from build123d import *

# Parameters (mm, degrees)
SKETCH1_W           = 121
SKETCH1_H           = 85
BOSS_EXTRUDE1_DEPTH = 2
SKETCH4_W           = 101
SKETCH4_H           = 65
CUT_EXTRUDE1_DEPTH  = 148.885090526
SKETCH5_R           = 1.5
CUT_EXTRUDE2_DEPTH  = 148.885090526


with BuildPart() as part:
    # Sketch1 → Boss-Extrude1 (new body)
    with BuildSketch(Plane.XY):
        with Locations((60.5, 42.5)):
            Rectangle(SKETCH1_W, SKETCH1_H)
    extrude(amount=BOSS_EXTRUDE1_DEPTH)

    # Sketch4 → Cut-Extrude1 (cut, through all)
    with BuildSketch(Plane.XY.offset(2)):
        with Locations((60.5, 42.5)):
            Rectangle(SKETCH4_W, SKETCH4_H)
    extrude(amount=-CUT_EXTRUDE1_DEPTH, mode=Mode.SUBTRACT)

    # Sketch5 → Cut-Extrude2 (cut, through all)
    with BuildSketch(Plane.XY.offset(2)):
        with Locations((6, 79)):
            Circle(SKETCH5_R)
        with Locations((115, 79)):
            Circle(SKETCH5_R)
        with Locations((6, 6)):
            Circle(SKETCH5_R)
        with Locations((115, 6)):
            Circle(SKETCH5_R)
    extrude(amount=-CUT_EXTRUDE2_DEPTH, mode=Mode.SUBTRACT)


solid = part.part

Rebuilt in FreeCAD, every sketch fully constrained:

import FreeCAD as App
import Part
import Sketcher
from FreeCAD import Vector
Q = App.Units.Quantity

doc = App.newDocument("Part")
body = doc.addObject("PartDesign::Body", "Body")

sketch1 = doc.addObject("Sketcher::SketchObject", "Sketch")
body.addObject(sketch1)
sketch1.AttachmentSupport = (doc.XY_Plane, [""])
sketch1.MapMode = "FlatFace"
sketch1.addGeometry(Part.LineSegment(Vector(0, 85, 0), Vector(0, 0, 0)), False)
sketch1.addGeometry(Part.LineSegment(Vector(0, 0, 0), Vector(121, 0, 0)), False)
sketch1.addGeometry(Part.LineSegment(Vector(121, 0, 0), Vector(121, 85, 0)), False)
sketch1.addGeometry(Part.LineSegment(Vector(121, 85, 0), Vector(0, 85, 0)), False)
sketch1.addConstraint(Sketcher.Constraint("Coincident", 0, 2, 1, 1))
sketch1.addConstraint(Sketcher.Constraint("Coincident", 1, 2, 2, 1))
sketch1.addConstraint(Sketcher.Constraint("Coincident", 2, 2, 3, 1))
sketch1.addConstraint(Sketcher.Constraint("Coincident", 3, 2, 0, 1))
sketch1.addConstraint(Sketcher.Constraint("Vertical", 0))
sketch1.addConstraint(Sketcher.Constraint("Horizontal", 1))
sketch1.addConstraint(Sketcher.Constraint("Vertical", 2))
sketch1.addConstraint(Sketcher.Constraint("Horizontal", 3))
sketch1.addConstraint(Sketcher.Constraint("Coincident", 0, 2, -1, 1))
sketch1.addConstraint(Sketcher.Constraint("DistanceX", 1, 1, 1, 2, Q("121 mm")))
sketch1.addConstraint(Sketcher.Constraint("DistanceY", 0, 2, 0, 1, Q("85 mm")))
pad1 = doc.addObject("PartDesign::Pad", "Pad")
body.addObject(pad1)
pad1.Profile = sketch1
pad1.Length = 2

sketch2 = doc.addObject("Sketcher::SketchObject", "Sketch001")
body.addObject(sketch2)
sketch2.AttachmentSupport = (doc.XY_Plane, [""])
sketch2.MapMode = "FlatFace"
sketch2.AttachmentOffset = App.Placement(Vector(0, 0, 2), App.Rotation())
sketch2.addGeometry(Part.LineSegment(Vector(10, 75, 0), Vector(10, 10, 0)), False)
sketch2.addGeometry(Part.LineSegment(Vector(10, 10, 0), Vector(111, 10, 0)), False)
sketch2.addGeometry(Part.LineSegment(Vector(111, 10, 0), Vector(111, 75, 0)), False)
sketch2.addGeometry(Part.LineSegment(Vector(111, 75, 0), Vector(10, 75, 0)), False)
sketch2.addConstraint(Sketcher.Constraint("Coincident", 0, 2, 1, 1))
sketch2.addConstraint(Sketcher.Constraint("Coincident", 1, 2, 2, 1))
sketch2.addConstraint(Sketcher.Constraint("Coincident", 2, 2, 3, 1))
sketch2.addConstraint(Sketcher.Constraint("Coincident", 3, 2, 0, 1))
sketch2.addConstraint(Sketcher.Constraint("Vertical", 0))
sketch2.addConstraint(Sketcher.Constraint("Horizontal", 1))
sketch2.addConstraint(Sketcher.Constraint("Vertical", 2))
sketch2.addConstraint(Sketcher.Constraint("Horizontal", 3))
sketch2.addConstraint(Sketcher.Constraint("DistanceX", 1, 1, 1, 2, Q("101 mm")))
sketch2.addConstraint(Sketcher.Constraint("DistanceY", 0, 2, 0, 1, Q("65 mm")))
sketch2.addConstraint(Sketcher.Constraint("DistanceX", -1, 1, 0, 2, Q("10 mm")))
sketch2.addConstraint(Sketcher.Constraint("DistanceY", -1, 1, 0, 2, Q("10 mm")))
pocket1 = doc.addObject("PartDesign::Pocket", "Pocket")
body.addObject(pocket1)
pocket1.Profile = sketch2
pocket1.Type = "ThroughAll"

sketch3 = doc.addObject("Sketcher::SketchObject", "Sketch002")
body.addObject(sketch3)
sketch3.AttachmentSupport = (doc.XY_Plane, [""])
sketch3.MapMode = "FlatFace"
sketch3.AttachmentOffset = App.Placement(Vector(0, 0, 2), App.Rotation())
sketch3.addGeometry(Part.Circle(Vector(6, 79, 0), Vector(0, 0, 1), 1.5), False)
sketch3.addGeometry(Part.Circle(Vector(115, 79, 0), Vector(0, 0, 1), 1.5), False)
sketch3.addGeometry(Part.Circle(Vector(6, 6, 0), Vector(0, 0, 1), 1.5), False)
sketch3.addGeometry(Part.Circle(Vector(115, 6, 0), Vector(0, 0, 1), 1.5), False)
sketch3.addConstraint(Sketcher.Constraint("Equal", 0, 1))
sketch3.addConstraint(Sketcher.Constraint("Equal", 1, 2))
sketch3.addConstraint(Sketcher.Constraint("Equal", 2, 3))
sketch3.addConstraint(Sketcher.Constraint("Horizontal", 0, 3, 1, 3))
sketch3.addConstraint(Sketcher.Constraint("Horizontal", 2, 3, 3, 3))
sketch3.addConstraint(Sketcher.Constraint("Vertical", 0, 3, 2, 3))
sketch3.addConstraint(Sketcher.Constraint("Vertical", 1, 3, 3, 3))
sketch3.addConstraint(Sketcher.Constraint("Diameter", 0, Q("3 mm")))
sketch3.addConstraint(Sketcher.Constraint("DistanceX", -1, 1, 0, 3, Q("6 mm")))
sketch3.addConstraint(Sketcher.Constraint("DistanceY", -1, 1, 0, 3, Q("79 mm")))
sketch3.addConstraint(Sketcher.Constraint("DistanceX", -1, 1, 1, 3, Q("115 mm")))
sketch3.addConstraint(Sketcher.Constraint("DistanceY", -1, 1, 2, 3, Q("6 mm")))
pocket2 = doc.addObject("PartDesign::Pocket", "Pocket001")
body.addObject(pocket2)
pocket2.Profile = sketch3
pocket2.Type = "ThroughAll"

doc.recompute()
